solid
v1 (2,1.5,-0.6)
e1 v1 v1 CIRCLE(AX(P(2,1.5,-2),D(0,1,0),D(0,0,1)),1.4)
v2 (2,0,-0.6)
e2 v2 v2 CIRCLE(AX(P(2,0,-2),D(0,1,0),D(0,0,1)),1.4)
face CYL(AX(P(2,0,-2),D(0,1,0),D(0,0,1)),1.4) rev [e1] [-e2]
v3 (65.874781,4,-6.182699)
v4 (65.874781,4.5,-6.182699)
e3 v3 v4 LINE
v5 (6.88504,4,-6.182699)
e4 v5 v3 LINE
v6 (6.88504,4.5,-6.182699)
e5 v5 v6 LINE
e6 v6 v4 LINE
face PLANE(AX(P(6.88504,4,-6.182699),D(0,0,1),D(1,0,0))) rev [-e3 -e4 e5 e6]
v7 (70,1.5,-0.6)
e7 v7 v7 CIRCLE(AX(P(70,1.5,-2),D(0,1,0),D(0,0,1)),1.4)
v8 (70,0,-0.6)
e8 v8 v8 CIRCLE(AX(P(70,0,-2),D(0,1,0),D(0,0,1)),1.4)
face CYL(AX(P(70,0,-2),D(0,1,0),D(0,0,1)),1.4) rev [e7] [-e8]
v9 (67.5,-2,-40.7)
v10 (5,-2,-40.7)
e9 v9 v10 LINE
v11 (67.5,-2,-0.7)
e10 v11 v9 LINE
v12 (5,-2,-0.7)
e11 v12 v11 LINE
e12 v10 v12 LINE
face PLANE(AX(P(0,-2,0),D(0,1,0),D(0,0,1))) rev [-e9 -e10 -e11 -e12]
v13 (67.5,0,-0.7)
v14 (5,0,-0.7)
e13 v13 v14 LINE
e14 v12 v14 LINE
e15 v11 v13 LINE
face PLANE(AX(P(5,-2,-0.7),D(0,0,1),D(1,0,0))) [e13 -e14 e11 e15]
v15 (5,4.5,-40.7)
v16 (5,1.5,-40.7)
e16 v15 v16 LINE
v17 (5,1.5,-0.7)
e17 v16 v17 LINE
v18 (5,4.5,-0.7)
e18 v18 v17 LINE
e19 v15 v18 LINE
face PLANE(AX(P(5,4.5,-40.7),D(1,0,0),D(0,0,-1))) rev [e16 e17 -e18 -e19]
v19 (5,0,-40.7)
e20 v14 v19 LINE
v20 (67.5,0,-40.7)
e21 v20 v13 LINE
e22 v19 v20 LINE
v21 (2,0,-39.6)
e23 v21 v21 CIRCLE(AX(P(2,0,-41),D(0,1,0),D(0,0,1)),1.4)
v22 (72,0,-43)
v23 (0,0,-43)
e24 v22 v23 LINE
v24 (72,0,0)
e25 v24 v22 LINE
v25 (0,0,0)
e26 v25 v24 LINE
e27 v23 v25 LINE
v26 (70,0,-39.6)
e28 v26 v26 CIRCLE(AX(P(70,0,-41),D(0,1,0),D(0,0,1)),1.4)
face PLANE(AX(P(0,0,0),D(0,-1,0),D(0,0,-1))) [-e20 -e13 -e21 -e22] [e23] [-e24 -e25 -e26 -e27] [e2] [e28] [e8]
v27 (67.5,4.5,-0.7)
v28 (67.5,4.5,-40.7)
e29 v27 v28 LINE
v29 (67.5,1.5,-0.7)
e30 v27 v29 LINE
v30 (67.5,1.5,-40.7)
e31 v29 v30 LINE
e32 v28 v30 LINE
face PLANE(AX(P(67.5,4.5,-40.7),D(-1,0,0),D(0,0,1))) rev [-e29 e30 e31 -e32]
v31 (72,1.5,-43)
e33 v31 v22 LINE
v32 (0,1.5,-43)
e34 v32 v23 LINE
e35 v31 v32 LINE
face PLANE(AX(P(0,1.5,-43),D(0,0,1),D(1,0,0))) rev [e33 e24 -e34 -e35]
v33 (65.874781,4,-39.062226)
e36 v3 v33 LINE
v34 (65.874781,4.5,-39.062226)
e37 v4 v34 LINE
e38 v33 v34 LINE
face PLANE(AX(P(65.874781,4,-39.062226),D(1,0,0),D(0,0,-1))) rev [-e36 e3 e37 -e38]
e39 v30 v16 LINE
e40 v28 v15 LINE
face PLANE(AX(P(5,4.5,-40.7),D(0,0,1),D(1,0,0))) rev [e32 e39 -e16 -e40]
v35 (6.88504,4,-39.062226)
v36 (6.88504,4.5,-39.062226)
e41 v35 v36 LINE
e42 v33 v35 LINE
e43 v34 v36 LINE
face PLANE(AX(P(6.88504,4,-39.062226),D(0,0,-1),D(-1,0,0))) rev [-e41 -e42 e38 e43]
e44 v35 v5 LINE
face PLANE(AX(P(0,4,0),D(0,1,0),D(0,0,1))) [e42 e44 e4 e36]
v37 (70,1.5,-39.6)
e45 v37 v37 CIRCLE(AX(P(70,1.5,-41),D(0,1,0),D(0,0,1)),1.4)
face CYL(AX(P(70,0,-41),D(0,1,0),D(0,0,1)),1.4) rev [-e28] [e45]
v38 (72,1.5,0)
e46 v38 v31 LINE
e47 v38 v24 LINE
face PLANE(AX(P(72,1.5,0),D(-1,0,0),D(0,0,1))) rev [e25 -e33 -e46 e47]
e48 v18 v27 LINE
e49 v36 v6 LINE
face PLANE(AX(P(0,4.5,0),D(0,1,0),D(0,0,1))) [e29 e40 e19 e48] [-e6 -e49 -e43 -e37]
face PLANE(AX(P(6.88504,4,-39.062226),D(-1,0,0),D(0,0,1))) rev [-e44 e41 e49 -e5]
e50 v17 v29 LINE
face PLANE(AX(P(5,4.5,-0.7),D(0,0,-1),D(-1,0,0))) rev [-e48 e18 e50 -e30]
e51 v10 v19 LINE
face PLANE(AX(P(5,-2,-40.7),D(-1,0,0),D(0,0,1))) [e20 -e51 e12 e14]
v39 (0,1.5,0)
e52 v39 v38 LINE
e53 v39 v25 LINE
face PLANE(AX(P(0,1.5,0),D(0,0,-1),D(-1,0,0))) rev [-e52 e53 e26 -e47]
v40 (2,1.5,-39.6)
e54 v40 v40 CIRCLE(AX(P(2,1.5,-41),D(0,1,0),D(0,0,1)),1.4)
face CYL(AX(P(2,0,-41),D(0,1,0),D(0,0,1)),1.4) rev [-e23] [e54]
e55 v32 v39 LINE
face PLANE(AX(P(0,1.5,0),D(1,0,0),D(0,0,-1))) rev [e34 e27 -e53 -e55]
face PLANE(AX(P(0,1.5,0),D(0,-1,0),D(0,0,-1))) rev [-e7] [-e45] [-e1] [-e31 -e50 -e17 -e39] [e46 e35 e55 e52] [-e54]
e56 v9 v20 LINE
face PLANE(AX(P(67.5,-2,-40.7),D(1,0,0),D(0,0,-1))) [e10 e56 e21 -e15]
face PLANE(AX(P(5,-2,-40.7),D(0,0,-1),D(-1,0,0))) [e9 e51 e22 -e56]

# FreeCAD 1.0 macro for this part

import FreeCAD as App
import Part
import Sketcher
Q = App.Units.Quantity


def add_polygon(sketch, points):
    """Adds a closed chain of lines whose ends are joined by coincident constraints."""
    first, n = sketch.GeometryCount, len(points)
    for a, b in zip(points, points[1:] + points[:1]):
        sketch.addGeometry(Part.LineSegment(App.Vector(*a, 0), App.Vector(*b, 0)), False)
    for i in range(n):
        sketch.addConstraint(Sketcher.Constraint("Coincident", first + i, 2, first + (i + 1) % n, 1))

doc = App.newDocument("Part")
params = doc.addObject("Spreadsheet::Sheet", "Params")
for row, (alias, value) in enumerate([
    ("sketch1_width", "72 mm"),
    ("sketch1_height", "43 mm"),
    ("pad1_length", "1.5 mm"),
    ("sketch2_diameter", "2.8 mm"),
    ("sketch3_height", "40 mm"),
    ("sketch3_width", "62.5 mm"),
    ("pad2_length", "3 mm"),
    ("sketch4_height", "40 mm"),
    ("sketch4_width", "62.5 mm"),
    ("pad3_length", "3.5 mm"),
    ("pocket2_length", "0.5 mm"),
], start=1):
    params.set(f"A{row}", alias)
    params.set(f"B{row}", "=" + value)
    params.setAlias(f"B{row}", alias)

body = doc.addObject("PartDesign::Body", "Body")

# Sketch on XZ plane
sketch1 = body.newObject("Sketcher::SketchObject", "Sketch")
sketch1.AttachmentSupport = (doc.getObject("XZ_Plane"), [""])
sketch1.MapMode = "FlatFace"
add_polygon(sketch1, [(0, -43), (0, 0), (72, 0), (72, -43)])  # lines 0-3
sketch1.addConstraint(Sketcher.Constraint("Vertical", 0))
sketch1.addConstraint(Sketcher.Constraint("Horizontal", 1))
sketch1.addConstraint(Sketcher.Constraint("Vertical", 2))
sketch1.addConstraint(Sketcher.Constraint("Horizontal", 3))
sketch1.addConstraint(Sketcher.Constraint("Coincident", 0, 2, -1, 1))
sketch1.addConstraint(Sketcher.Constraint("DistanceX", 1, 1, 1, 2, Q("72 mm")))
sketch1.addConstraint(Sketcher.Constraint("DistanceY", 0, 1, 0, 2, Q("43 mm")))
sketch1.setExpression("Constraints[9]", "Params.sketch1_width")
sketch1.setExpression("Constraints[10]", "Params.sketch1_height")
pad1 = body.newObject("PartDesign::Pad", "Pad")
pad1.Profile = sketch1
pad1.setExpression("Length", "Params.pad1_length")
pad1.Reversed = True

# Sketch on XZ plane
sketch2 = body.newObject("Sketcher::SketchObject", "Sketch001")
sketch2.AttachmentSupport = (doc.getObject("XZ_Plane"), [""])
sketch2.MapMode = "FlatFace"
sketch2.AttachmentOffset = App.Placement(App.Vector(0, 0, -1.5), App.Rotation())
sketch2.addGeometry(Part.Circle(App.Vector(2, -41, 0), App.Vector(0, 0, 1), 1.4), False)
sketch2.addGeometry(Part.Circle(App.Vector(70, -41, 0), App.Vector(0, 0, 1), 1.4), False)
sketch2.addGeometry(Part.Circle(App.Vector(2, -2, 0), App.Vector(0, 0, 1), 1.4), False)
sketch2.addGeometry(Part.Circle(App.Vector(70, -2, 0), App.Vector(0, 0, 1), 1.4), False)
sketch2.addConstraint(Sketcher.Constraint("Equal", 0, 1))
sketch2.addConstraint(Sketcher.Constraint("Equal", 1, 2))
sketch2.addConstraint(Sketcher.Constraint("Equal", 2, 3))
sketch2.addConstraint(Sketcher.Constraint("Horizontal", 0, 3, 1, 3))
sketch2.addConstraint(Sketcher.Constraint("Horizontal", 2, 3, 3, 3))
sketch2.addConstraint(Sketcher.Constraint("Vertical", 0, 3, 2, 3))
sketch2.addConstraint(Sketcher.Constraint("Vertical", 1, 3, 3, 3))
sketch2.addConstraint(Sketcher.Constraint("Diameter", 0, Q("2.8 mm")))
sketch2.addConstraint(Sketcher.Constraint("DistanceX", -1, 1, 0, 3, Q("2 mm")))
sketch2.addConstraint(Sketcher.Constraint("DistanceY", 0, 3, -1, 1, Q("41 mm")))
sketch2.addConstraint(Sketcher.Constraint("DistanceX", -1, 1, 1, 3, Q("70 mm")))
sketch2.addConstraint(Sketcher.Constraint("DistanceY", 2, 3, -1, 1, Q("2 mm")))
sketch2.setExpression("Constraints[7]", "Params.sketch2_diameter")
pocket1 = body.newObject("PartDesign::Pocket", "Pocket")
pocket1.Profile = sketch2
pocket1.Type = "ThroughAll"
pocket1.Reversed = True

# Sketch on XZ plane
sketch3 = body.newObject("Sketcher::SketchObject", "Sketch002")
sketch3.AttachmentSupport = (doc.getObject("XZ_Plane"), [""])
sketch3.MapMode = "FlatFace"
sketch3.AttachmentOffset = App.Placement(App.Vector(0, 0, -1.5), App.Rotation())
add_polygon(sketch3, [(5, -40.7), (5, -0.7), (67.5, -0.7), (67.5, -40.7)])  # lines 0-3
sketch3.addConstraint(Sketcher.Constraint("Vertical", 0))
sketch3.addConstraint(Sketcher.Constraint("Horizontal", 1))
sketch3.addConstraint(Sketcher.Constraint("Vertical", 2))
sketch3.addConstraint(Sketcher.Constraint("Horizontal", 3))
sketch3.addConstraint(Sketcher.Constraint("DistanceY", 0, 1, 0, 2, Q("40 mm")))
sketch3.addConstraint(Sketcher.Constraint("DistanceX", 1, 1, 1, 2, Q("62.5 mm")))
sketch3.addConstraint(Sketcher.Constraint("DistanceX", -1, 1, 0, 2, Q("5 mm")))
sketch3.addConstraint(Sketcher.Constraint("DistanceY", 0, 2, -1, 1, Q("0.7 mm")))
sketch3.setExpression("Constraints[8]", "Params.sketch3_height")
sketch3.setExpression("Constraints[9]", "Params.sketch3_width")
pad2 = body.newObject("PartDesign::Pad", "Pad001")
pad2.Profile = sketch3
pad2.setExpression("Length", "Params.pad2_length")
pad2.Reversed = True

# Sketch on XZ plane
sketch4 = body.newObject("Sketcher::SketchObject", "Sketch003")
sketch4.AttachmentSupport = (doc.getObject("XZ_Plane"), [""])
sketch4.MapMode = "FlatFace"
sketch4.AttachmentOffset = App.Placement(App.Vector(0, 0, -1.5), App.Rotation())
add_polygon(sketch4, [(5, -40.7), (5, -0.7), (67.5, -0.7), (67.5, -40.7)])  # lines 0-3
sketch4.addConstraint(Sketcher.Constraint("Vertical", 0))
sketch4.addConstraint(Sketcher.Constraint("Horizontal", 1))
sketch4.addConstraint(Sketcher.Constraint("Vertical", 2))
sketch4.addConstraint(Sketcher.Constraint("Horizontal", 3))
sketch4.addConstraint(Sketcher.Constraint("DistanceY", 0, 1, 0, 2, Q("40 mm")))
sketch4.addConstraint(Sketcher.Constraint("DistanceX", 1, 1, 1, 2, Q("62.5 mm")))
sketch4.addConstraint(Sketcher.Constraint("DistanceX", -1, 1, 0, 2, Q("5 mm")))
sketch4.addConstraint(Sketcher.Constraint("DistanceY", 0, 2, -1, 1, Q("0.7 mm")))
sketch4.setExpression("Constraints[8]", "Params.sketch4_height")
sketch4.setExpression("Constraints[9]", "Params.sketch4_width")
pad3 = body.newObject("PartDesign::Pad", "Pad002")
pad3.Profile = sketch4
pad3.setExpression("Length", "Params.pad3_length")

# Sketch on XZ plane
sketch5 = body.newObject("Sketcher::SketchObject", "Sketch004")
sketch5.AttachmentSupport = (doc.getObject("XZ_Plane"), [""])
sketch5.MapMode = "FlatFace"
sketch5.AttachmentOffset = App.Placement(App.Vector(0, 0, -4.5), App.Rotation())
add_polygon(sketch5, [(6.88504, -39.062226), (6.88504, -6.182699), (65.874781, -6.182699), (65.874781, -39.062226)])  # lines 0-3
sketch5.addConstraint(Sketcher.Constraint("Vertical", 0))
sketch5.addConstraint(Sketcher.Constraint("Horizontal", 1))
sketch5.addConstraint(Sketcher.Constraint("Vertical", 2))
sketch5.addConstraint(Sketcher.Constraint("Horizontal", 3))
sketch5.addConstraint(Sketcher.Constraint("DistanceX", 1, 1, 1, 2, Q("58.98974 mm")))
sketch5.addConstraint(Sketcher.Constraint("DistanceY", 0, 2, -1, 1, Q("6.182699 mm")))
sketch5.addConstraint(Sketcher.Constraint("DistanceY", 0, 1, 0, 2, Q("32.879527 mm")))
sketch5.addConstraint(Sketcher.Constraint("DistanceX", -1, 1, 0, 2, Q("6.88504 mm")))
pocket2 = body.newObject("PartDesign::Pocket", "Pocket001")
pocket2.Profile = sketch5
pocket2.setExpression("Length", "Params.pocket2_length")
pocket2.Reversed = True

doc.recompute()
